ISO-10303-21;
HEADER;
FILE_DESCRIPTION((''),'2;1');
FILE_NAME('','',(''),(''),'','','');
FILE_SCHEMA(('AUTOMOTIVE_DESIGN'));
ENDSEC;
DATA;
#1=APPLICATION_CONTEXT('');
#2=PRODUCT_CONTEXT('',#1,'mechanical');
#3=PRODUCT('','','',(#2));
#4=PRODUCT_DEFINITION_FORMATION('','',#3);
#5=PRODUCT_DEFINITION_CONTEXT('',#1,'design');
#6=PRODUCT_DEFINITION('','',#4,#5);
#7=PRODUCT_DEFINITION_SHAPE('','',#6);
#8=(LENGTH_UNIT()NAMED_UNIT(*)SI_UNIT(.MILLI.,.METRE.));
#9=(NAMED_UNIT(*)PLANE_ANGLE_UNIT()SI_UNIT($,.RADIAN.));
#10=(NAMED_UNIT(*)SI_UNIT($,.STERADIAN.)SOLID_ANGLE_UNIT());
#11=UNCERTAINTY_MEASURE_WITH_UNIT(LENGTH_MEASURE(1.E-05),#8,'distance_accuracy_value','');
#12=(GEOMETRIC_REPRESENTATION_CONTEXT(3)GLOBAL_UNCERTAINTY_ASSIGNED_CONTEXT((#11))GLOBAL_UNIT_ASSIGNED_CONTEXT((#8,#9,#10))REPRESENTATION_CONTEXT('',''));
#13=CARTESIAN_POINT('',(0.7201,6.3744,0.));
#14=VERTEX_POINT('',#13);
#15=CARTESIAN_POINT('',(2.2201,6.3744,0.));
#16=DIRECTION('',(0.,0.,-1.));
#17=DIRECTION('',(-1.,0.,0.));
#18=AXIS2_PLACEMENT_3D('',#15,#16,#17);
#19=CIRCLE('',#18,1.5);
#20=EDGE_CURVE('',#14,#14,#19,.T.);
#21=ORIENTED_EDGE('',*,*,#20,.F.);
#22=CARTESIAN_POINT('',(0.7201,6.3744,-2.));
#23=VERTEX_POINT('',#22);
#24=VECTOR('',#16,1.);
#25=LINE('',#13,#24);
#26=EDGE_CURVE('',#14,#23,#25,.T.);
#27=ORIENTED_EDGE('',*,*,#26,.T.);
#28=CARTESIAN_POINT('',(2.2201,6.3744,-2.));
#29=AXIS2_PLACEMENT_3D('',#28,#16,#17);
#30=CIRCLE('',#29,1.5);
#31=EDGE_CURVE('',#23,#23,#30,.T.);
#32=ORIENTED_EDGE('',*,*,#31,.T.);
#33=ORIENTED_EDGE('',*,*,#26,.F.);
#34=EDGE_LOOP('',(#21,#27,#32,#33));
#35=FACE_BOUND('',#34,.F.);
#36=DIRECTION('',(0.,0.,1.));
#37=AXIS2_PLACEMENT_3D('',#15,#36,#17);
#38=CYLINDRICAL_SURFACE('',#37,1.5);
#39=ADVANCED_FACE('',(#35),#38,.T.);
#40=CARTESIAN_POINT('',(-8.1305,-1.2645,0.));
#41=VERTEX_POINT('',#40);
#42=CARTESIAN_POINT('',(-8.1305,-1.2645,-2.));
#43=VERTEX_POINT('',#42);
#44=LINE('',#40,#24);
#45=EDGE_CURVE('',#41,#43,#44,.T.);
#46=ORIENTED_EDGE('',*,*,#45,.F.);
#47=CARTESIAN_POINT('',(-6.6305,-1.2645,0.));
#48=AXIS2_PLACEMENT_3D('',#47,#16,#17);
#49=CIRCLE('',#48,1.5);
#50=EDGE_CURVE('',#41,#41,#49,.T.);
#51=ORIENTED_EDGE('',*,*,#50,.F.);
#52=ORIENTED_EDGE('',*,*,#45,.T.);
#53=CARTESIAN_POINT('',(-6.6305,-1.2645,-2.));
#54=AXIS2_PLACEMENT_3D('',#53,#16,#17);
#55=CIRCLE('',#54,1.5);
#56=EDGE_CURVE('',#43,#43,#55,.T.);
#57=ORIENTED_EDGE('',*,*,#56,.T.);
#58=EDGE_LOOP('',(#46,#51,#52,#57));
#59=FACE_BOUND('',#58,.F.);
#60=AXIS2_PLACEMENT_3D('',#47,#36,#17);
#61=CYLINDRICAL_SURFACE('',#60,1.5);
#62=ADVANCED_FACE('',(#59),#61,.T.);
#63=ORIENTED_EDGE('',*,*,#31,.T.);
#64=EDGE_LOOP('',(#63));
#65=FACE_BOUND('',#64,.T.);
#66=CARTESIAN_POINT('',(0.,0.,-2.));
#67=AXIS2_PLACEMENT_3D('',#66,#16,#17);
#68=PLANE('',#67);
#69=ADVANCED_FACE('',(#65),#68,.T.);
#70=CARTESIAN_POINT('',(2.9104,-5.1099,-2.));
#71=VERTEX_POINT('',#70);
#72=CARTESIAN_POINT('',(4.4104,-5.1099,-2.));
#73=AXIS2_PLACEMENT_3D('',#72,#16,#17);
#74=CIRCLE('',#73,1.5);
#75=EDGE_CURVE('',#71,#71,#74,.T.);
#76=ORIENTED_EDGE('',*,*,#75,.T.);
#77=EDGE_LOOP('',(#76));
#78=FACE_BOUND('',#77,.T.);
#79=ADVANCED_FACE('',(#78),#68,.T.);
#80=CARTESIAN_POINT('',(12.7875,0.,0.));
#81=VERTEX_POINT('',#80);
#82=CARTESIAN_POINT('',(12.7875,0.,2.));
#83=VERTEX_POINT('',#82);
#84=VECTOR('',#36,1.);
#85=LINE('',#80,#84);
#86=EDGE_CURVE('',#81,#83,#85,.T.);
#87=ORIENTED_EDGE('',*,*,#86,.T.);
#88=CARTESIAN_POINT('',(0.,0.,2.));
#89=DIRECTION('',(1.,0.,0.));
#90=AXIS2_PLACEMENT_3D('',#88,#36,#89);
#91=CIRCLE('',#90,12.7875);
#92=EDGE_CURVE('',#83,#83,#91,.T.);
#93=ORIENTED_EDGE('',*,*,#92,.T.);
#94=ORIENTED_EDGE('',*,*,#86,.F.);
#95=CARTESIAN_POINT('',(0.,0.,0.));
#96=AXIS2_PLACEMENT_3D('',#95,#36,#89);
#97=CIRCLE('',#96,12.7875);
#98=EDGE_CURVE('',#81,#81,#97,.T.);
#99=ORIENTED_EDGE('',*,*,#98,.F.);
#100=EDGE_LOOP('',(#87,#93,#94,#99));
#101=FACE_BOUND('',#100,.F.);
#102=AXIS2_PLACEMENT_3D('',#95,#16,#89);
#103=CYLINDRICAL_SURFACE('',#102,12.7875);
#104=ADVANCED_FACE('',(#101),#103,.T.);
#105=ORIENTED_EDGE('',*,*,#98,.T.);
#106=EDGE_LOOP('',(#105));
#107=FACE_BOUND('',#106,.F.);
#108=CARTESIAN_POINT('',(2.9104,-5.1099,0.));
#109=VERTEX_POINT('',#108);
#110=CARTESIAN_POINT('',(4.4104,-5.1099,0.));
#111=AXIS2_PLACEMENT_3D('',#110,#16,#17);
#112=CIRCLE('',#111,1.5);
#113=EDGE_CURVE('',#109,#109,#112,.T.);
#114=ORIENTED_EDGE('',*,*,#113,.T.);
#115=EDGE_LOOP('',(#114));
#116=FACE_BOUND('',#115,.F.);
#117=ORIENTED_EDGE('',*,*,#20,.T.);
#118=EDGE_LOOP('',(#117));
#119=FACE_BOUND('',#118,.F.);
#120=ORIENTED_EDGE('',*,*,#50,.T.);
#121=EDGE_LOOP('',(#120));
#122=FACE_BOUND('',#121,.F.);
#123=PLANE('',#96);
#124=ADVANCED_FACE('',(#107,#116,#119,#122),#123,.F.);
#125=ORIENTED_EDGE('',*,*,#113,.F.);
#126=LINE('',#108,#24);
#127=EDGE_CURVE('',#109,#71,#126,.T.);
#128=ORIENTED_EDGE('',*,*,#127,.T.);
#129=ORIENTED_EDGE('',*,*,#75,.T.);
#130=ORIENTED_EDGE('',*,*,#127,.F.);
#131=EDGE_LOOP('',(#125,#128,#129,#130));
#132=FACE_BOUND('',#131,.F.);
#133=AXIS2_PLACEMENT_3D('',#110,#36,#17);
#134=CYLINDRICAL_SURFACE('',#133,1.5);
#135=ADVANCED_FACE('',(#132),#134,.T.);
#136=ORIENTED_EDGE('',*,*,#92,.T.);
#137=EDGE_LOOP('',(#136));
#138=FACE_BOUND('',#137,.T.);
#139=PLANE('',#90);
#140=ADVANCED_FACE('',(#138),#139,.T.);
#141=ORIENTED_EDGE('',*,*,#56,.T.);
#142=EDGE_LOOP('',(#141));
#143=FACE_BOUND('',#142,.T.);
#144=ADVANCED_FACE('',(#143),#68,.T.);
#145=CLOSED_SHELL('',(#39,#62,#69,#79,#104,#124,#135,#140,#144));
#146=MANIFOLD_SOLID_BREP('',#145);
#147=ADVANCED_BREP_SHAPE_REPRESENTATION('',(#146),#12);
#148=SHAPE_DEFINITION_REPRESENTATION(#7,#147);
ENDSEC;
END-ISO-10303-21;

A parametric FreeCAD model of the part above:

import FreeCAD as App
import Part
import Sketcher
Q = App.Units.Quantity

doc = App.newDocument("Part")
body = doc.addObject("PartDesign::Body", "Body")

# Sketch on XY plane
sketch1 = doc.addObject("Sketcher::SketchObject", "Sketch")
body.addObject(sketch1)
sketch1.AttachmentSupport = (doc.XY_Plane, [""])
sketch1.MapMode = "FlatFace"
sketch1.addGeometry(Part.Circle(App.Vector(0, 0, 0), App.Vector(0, 0, 1), 13), False)
sketch1.addConstraint([
    Sketcher.Constraint("Coincident", 0, 3, -1, 1),
    Sketcher.Constraint("Diameter", 0, Q("25.575 mm")),
])
pad1 = doc.addObject("PartDesign::Pad", "Pad")
body.addObject(pad1)
pad1.Profile = sketch1
pad1.Length = 2

# Sketch on XY plane
sketch2 = doc.addObject("Sketcher::SketchObject", "Sketch001")
body.addObject(sketch2)
sketch2.AttachmentSupport = (doc.XY_Plane, [""])
sketch2.MapMode = "FlatFace"
sketch2.addGeometry([
    Part.Circle(App.Vector(2.2, 6.4, 0), App.Vector(0, 0, 1), 1.5),
    Part.Circle(App.Vector(4.4, -5.1, 0), App.Vector(0, 0, 1), 1.5),
    Part.Circle(App.Vector(-6.6, -1.3, 0), App.Vector(0, 0, 1), 1.5),
], False)
sketch2.addConstraint([
    Sketcher.Constraint("Equal", 0, 1),
    Sketcher.Constraint("Equal", 1, 2),
    Sketcher.Constraint("Diameter", 0, Q("3 mm")),
    Sketcher.Constraint("DistanceX", -1, 1, 0, 3, Q("2.22 mm")),
    Sketcher.Constraint("DistanceY", 1, 3, -1, 1, Q("5.11 mm")),
    Sketcher.Constraint("DistanceY", 2, 3, 0, 3, Q("7.639 mm")),
    Sketcher.Constraint("DistanceX", 2, 3, 1, 3, Q("11.041 mm")),
    Sketcher.Constraint("DistanceY", -1, 1, 0, 3, Q("6.3744 mm")),
    Sketcher.Constraint("DistanceX", -1, 1, 1, 3, Q("4.4104 mm")),
])
pad2 = doc.addObject("PartDesign::Pad", "Pad001")
body.addObject(pad2)
pad2.Profile = sketch2
pad2.Length = 2
pad2.Reversed = True

doc.recompute()
